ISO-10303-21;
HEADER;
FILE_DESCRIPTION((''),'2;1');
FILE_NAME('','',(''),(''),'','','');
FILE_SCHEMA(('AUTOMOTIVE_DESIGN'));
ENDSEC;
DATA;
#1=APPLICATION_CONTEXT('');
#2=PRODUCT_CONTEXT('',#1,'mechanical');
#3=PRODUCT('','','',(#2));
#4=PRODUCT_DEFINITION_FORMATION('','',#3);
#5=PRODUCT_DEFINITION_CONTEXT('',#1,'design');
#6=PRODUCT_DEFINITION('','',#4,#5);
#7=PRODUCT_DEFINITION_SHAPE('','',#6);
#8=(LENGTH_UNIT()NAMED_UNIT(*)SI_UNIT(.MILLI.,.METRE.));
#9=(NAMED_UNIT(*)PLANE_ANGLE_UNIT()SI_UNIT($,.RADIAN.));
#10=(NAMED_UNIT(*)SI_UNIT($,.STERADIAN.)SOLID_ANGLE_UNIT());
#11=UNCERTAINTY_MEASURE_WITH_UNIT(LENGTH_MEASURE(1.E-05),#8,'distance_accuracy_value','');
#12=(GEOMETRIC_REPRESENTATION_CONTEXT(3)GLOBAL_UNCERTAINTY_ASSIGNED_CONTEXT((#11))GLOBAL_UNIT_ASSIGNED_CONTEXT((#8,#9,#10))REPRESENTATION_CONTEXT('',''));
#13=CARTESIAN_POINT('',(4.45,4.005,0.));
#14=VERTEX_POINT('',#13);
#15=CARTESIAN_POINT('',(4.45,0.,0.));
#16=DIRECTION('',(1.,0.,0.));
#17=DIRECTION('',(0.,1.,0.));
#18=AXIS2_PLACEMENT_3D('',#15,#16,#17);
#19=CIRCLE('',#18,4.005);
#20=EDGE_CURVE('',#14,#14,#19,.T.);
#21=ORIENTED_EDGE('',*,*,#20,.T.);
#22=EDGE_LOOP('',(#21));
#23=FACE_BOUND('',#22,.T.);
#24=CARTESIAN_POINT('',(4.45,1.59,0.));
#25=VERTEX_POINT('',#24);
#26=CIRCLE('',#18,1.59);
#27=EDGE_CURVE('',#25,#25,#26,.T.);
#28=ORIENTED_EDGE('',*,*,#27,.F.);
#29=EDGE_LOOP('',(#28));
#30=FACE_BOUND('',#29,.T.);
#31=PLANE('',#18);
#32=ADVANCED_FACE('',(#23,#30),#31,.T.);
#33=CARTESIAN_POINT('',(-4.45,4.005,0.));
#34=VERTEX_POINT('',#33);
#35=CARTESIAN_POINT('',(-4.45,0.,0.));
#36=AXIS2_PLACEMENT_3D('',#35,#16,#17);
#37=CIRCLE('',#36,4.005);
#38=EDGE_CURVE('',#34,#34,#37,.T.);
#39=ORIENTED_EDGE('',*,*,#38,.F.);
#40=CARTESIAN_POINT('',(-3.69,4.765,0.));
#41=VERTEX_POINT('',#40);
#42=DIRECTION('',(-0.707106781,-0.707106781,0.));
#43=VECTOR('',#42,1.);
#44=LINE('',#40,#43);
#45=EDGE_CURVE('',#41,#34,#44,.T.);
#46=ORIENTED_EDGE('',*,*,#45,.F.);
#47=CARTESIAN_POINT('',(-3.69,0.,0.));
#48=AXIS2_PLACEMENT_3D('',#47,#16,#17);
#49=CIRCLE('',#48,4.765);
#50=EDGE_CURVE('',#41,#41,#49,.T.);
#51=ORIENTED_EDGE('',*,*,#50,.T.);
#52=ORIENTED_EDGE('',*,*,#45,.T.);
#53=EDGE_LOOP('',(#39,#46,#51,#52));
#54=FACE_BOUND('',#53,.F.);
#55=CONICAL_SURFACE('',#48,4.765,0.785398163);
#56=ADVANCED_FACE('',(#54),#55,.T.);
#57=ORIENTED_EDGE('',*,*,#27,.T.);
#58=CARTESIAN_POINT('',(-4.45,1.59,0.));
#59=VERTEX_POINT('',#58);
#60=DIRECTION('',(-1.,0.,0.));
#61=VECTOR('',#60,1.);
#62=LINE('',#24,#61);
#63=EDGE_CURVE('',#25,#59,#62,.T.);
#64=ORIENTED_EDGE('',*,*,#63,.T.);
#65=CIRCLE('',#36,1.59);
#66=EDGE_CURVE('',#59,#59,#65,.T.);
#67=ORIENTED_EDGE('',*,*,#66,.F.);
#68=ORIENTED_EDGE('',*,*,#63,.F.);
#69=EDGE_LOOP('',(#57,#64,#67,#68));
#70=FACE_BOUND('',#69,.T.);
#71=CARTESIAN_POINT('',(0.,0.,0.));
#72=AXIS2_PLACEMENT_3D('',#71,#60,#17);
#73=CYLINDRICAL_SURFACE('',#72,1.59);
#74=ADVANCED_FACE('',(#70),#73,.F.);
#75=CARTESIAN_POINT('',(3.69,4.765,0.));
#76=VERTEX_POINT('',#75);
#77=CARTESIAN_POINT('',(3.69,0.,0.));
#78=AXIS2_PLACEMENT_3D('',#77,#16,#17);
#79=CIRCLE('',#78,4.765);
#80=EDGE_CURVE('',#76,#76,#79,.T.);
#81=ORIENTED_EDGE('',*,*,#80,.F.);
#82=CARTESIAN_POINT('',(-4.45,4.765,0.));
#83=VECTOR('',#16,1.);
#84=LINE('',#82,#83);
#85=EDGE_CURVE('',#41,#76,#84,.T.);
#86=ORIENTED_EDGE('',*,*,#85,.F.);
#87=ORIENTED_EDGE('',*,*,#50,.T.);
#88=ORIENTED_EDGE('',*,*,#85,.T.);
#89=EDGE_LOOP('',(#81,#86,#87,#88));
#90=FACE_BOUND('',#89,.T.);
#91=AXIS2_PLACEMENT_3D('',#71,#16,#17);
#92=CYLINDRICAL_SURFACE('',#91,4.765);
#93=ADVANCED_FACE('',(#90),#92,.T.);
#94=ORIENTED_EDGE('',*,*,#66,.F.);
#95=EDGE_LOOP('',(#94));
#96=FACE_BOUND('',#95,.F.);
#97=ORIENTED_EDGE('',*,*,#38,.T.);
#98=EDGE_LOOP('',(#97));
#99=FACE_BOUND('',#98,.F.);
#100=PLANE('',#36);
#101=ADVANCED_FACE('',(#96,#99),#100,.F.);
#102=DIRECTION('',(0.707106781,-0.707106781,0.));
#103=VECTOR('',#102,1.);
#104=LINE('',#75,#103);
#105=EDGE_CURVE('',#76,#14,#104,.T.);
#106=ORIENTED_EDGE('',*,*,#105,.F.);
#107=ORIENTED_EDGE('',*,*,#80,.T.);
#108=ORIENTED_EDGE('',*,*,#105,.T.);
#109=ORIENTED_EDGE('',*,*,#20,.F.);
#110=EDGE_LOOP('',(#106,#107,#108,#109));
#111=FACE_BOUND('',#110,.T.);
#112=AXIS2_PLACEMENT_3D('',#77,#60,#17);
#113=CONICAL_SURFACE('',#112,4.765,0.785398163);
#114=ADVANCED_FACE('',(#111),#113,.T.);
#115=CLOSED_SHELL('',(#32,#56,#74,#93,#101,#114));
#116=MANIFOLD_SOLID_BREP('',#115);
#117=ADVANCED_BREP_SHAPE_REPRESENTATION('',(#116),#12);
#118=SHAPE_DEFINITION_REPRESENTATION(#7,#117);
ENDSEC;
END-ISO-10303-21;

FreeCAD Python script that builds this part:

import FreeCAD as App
import Part
import Sketcher

V = App.Vector
Q = App.Units.Quantity


def edges_at(feature, points):
    """Names of the edges that pass closest to the given points."""
    edges = feature.Shape.Edges
    near = lambda p: min(range(len(edges)), key=lambda i: edges[i].distToShape(Part.Vertex(*p))[0])
    return sorted({f"Edge{near(p) + 1}" for p in points})

doc = App.newDocument("Part")
body = doc.addObject("PartDesign::Body", "Body")

# Sketch on YZ plane
sketch1 = body.newObject("Sketcher::SketchObject", "Sketch")
sketch1.AttachmentSupport = (doc.getObject("YZ_Plane"), [""])
sketch1.MapMode = "FlatFace"
sketch1.addGeometry([
    Part.Circle(V(0, 0, 0), V(0, 0, 1), 4.8),
    Part.Circle(V(0, 0, 0), V(0, 0, 1), 1.6),
], False)
sketch1.addConstraint([
    Sketcher.Constraint("Coincident", 0, 3, -1, 1),
    Sketcher.Constraint("Coincident", 1, 3, -1, 1),
    Sketcher.Constraint("Diameter", 0, Q("9.53 mm")),
    Sketcher.Constraint("Diameter", 1, Q("3.18 mm")),
])
pad1 = body.newObject("PartDesign::Pad", "Pad")
pad1.Profile = sketch1
pad1.Length = 8.9
pad1.Midplane = True
doc.recompute()

chamfer = body.newObject("PartDesign::Chamfer", "Chamfer")
chamfer.Base = (pad1, edges_at(pad1, [(-4.45, -4.765, 0), (0, 4.765, 0), (4.45, -4.765, 0)]))
chamfer.Size = 0.76

doc.recompute()
